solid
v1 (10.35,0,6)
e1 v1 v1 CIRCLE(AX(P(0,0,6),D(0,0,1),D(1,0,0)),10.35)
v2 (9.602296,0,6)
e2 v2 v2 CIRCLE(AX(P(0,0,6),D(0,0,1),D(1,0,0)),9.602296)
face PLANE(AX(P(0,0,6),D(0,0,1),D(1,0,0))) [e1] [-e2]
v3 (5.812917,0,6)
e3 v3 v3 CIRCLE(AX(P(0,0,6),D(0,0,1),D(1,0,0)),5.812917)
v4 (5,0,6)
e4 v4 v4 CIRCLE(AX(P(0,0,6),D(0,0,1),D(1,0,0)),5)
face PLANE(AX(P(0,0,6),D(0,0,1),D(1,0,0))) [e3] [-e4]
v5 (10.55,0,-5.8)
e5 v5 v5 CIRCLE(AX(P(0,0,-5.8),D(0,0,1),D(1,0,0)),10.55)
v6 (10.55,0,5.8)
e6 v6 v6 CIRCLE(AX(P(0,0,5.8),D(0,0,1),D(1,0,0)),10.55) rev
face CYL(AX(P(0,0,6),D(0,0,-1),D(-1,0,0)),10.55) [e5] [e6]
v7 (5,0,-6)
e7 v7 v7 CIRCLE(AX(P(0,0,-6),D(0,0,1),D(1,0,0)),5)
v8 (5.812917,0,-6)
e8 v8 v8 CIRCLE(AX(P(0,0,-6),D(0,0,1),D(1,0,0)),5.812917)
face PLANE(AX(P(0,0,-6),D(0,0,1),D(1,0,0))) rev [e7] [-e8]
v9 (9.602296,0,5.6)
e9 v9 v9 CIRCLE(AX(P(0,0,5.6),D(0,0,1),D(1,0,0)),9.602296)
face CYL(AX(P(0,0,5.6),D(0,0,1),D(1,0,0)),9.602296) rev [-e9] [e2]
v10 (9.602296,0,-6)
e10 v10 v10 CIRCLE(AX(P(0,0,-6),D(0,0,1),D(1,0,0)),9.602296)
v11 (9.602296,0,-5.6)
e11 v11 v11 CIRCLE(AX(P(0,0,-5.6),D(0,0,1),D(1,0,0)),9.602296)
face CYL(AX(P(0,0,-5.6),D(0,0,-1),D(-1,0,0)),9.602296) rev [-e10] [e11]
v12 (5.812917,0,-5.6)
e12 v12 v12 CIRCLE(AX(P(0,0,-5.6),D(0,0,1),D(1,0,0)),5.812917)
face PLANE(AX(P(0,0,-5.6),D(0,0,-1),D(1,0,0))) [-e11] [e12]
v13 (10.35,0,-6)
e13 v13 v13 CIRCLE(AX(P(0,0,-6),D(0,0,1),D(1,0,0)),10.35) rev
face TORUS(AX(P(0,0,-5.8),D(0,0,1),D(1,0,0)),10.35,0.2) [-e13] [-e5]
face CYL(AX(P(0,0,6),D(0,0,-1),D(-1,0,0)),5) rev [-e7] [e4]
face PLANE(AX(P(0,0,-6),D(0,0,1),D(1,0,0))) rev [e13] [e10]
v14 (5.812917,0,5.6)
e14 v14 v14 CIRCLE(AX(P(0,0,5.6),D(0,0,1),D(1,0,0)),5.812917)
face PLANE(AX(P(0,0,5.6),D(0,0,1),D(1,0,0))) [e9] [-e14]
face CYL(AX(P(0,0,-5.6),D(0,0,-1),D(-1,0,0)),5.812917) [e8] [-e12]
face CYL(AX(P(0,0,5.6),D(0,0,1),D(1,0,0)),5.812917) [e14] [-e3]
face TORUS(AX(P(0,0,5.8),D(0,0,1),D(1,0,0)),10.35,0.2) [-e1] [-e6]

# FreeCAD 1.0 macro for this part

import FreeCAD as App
import Part
import Sketcher
from FreeCAD import Vector
Q = App.Units.Quantity


def edges_at(feature, points):
    """Names of the edges that pass closest to the given points."""
    edges = feature.Shape.Edges
    near = lambda p: min(range(len(edges)), key=lambda i: edges[i].distToShape(Part.Vertex(*p))[0])
    return sorted({f"Edge{near(p) + 1}" for p in points})

doc = App.newDocument("Part")
body = doc.addObject("PartDesign::Body", "Body")

sketch1 = body.newObject("Sketcher::SketchObject", "Sketch")
sketch1.AttachmentSupport = (doc.getObject("XY_Plane"), [""])
sketch1.MapMode = "FlatFace"
sketch1.addGeometry(Part.Circle(Vector(0, 0, 0), Vector(0, 0, 1), 11), False)
sketch1.addGeometry(Part.Circle(Vector(0, 0, 0), Vector(0, 0, 1), 5), False)
sketch1.addConstraint(Sketcher.Constraint("Coincident", 0, 3, -1, 1))
sketch1.addConstraint(Sketcher.Constraint("Coincident", 1, 3, -1, 1))
sketch1.addConstraint(Sketcher.Constraint("Diameter", 1, Q("10 mm")))
sketch1.addConstraint(Sketcher.Constraint("Diameter", 0, Q("21.1 mm")))
pad1 = body.newObject("PartDesign::Pad", "Pad")
pad1.Profile = sketch1
pad1.Length = 12
pad1.Midplane = True
doc.recompute()

fillet = body.newObject("PartDesign::Fillet", "Fillet")
fillet.Base = (pad1, edges_at(pad1, [(-10.55, 0, -6), (-10.55, 0, 6)]))
fillet.Radius = 0.2

sketch2 = body.newObject("Sketcher::SketchObject", "Sketch001")
sketch2.AttachmentSupport = (doc.getObject("XY_Plane"), [""])
sketch2.MapMode = "FlatFace"
sketch2.AttachmentOffset = App.Placement(Vector(0, 0, 6), App.Rotation())
sketch2.addGeometry(Part.Circle(Vector(0, 0, 0), Vector(0, 0, 1), 10), False)
sketch2.addGeometry(Part.Circle(Vector(0, 0, 0), Vector(0, 0, 1), 6), False)
sketch2.addConstraint(Sketcher.Constraint("Coincident", 0, 3, -1, 1))
sketch2.addConstraint(Sketcher.Constraint("Coincident", 1, 3, -1, 1))
sketch2.addConstraint(Sketcher.Constraint("Diameter", 0, Q("19.204592 mm")))
sketch2.addConstraint(Sketcher.Constraint("Diameter", 1, Q("11.625833 mm")))
pocket1 = body.newObject("PartDesign::Pocket", "Pocket")
pocket1.Profile = sketch2
pocket1.Length = 0.4
doc.recompute()

mirrored = body.newObject("PartDesign::Mirrored", "Mirrored")
mirrored.Originals = [pocket1]
mirrored.MirrorPlane = (doc.getObject("XY_Plane"), [""])
body.Tip = mirrored

doc.recompute()
